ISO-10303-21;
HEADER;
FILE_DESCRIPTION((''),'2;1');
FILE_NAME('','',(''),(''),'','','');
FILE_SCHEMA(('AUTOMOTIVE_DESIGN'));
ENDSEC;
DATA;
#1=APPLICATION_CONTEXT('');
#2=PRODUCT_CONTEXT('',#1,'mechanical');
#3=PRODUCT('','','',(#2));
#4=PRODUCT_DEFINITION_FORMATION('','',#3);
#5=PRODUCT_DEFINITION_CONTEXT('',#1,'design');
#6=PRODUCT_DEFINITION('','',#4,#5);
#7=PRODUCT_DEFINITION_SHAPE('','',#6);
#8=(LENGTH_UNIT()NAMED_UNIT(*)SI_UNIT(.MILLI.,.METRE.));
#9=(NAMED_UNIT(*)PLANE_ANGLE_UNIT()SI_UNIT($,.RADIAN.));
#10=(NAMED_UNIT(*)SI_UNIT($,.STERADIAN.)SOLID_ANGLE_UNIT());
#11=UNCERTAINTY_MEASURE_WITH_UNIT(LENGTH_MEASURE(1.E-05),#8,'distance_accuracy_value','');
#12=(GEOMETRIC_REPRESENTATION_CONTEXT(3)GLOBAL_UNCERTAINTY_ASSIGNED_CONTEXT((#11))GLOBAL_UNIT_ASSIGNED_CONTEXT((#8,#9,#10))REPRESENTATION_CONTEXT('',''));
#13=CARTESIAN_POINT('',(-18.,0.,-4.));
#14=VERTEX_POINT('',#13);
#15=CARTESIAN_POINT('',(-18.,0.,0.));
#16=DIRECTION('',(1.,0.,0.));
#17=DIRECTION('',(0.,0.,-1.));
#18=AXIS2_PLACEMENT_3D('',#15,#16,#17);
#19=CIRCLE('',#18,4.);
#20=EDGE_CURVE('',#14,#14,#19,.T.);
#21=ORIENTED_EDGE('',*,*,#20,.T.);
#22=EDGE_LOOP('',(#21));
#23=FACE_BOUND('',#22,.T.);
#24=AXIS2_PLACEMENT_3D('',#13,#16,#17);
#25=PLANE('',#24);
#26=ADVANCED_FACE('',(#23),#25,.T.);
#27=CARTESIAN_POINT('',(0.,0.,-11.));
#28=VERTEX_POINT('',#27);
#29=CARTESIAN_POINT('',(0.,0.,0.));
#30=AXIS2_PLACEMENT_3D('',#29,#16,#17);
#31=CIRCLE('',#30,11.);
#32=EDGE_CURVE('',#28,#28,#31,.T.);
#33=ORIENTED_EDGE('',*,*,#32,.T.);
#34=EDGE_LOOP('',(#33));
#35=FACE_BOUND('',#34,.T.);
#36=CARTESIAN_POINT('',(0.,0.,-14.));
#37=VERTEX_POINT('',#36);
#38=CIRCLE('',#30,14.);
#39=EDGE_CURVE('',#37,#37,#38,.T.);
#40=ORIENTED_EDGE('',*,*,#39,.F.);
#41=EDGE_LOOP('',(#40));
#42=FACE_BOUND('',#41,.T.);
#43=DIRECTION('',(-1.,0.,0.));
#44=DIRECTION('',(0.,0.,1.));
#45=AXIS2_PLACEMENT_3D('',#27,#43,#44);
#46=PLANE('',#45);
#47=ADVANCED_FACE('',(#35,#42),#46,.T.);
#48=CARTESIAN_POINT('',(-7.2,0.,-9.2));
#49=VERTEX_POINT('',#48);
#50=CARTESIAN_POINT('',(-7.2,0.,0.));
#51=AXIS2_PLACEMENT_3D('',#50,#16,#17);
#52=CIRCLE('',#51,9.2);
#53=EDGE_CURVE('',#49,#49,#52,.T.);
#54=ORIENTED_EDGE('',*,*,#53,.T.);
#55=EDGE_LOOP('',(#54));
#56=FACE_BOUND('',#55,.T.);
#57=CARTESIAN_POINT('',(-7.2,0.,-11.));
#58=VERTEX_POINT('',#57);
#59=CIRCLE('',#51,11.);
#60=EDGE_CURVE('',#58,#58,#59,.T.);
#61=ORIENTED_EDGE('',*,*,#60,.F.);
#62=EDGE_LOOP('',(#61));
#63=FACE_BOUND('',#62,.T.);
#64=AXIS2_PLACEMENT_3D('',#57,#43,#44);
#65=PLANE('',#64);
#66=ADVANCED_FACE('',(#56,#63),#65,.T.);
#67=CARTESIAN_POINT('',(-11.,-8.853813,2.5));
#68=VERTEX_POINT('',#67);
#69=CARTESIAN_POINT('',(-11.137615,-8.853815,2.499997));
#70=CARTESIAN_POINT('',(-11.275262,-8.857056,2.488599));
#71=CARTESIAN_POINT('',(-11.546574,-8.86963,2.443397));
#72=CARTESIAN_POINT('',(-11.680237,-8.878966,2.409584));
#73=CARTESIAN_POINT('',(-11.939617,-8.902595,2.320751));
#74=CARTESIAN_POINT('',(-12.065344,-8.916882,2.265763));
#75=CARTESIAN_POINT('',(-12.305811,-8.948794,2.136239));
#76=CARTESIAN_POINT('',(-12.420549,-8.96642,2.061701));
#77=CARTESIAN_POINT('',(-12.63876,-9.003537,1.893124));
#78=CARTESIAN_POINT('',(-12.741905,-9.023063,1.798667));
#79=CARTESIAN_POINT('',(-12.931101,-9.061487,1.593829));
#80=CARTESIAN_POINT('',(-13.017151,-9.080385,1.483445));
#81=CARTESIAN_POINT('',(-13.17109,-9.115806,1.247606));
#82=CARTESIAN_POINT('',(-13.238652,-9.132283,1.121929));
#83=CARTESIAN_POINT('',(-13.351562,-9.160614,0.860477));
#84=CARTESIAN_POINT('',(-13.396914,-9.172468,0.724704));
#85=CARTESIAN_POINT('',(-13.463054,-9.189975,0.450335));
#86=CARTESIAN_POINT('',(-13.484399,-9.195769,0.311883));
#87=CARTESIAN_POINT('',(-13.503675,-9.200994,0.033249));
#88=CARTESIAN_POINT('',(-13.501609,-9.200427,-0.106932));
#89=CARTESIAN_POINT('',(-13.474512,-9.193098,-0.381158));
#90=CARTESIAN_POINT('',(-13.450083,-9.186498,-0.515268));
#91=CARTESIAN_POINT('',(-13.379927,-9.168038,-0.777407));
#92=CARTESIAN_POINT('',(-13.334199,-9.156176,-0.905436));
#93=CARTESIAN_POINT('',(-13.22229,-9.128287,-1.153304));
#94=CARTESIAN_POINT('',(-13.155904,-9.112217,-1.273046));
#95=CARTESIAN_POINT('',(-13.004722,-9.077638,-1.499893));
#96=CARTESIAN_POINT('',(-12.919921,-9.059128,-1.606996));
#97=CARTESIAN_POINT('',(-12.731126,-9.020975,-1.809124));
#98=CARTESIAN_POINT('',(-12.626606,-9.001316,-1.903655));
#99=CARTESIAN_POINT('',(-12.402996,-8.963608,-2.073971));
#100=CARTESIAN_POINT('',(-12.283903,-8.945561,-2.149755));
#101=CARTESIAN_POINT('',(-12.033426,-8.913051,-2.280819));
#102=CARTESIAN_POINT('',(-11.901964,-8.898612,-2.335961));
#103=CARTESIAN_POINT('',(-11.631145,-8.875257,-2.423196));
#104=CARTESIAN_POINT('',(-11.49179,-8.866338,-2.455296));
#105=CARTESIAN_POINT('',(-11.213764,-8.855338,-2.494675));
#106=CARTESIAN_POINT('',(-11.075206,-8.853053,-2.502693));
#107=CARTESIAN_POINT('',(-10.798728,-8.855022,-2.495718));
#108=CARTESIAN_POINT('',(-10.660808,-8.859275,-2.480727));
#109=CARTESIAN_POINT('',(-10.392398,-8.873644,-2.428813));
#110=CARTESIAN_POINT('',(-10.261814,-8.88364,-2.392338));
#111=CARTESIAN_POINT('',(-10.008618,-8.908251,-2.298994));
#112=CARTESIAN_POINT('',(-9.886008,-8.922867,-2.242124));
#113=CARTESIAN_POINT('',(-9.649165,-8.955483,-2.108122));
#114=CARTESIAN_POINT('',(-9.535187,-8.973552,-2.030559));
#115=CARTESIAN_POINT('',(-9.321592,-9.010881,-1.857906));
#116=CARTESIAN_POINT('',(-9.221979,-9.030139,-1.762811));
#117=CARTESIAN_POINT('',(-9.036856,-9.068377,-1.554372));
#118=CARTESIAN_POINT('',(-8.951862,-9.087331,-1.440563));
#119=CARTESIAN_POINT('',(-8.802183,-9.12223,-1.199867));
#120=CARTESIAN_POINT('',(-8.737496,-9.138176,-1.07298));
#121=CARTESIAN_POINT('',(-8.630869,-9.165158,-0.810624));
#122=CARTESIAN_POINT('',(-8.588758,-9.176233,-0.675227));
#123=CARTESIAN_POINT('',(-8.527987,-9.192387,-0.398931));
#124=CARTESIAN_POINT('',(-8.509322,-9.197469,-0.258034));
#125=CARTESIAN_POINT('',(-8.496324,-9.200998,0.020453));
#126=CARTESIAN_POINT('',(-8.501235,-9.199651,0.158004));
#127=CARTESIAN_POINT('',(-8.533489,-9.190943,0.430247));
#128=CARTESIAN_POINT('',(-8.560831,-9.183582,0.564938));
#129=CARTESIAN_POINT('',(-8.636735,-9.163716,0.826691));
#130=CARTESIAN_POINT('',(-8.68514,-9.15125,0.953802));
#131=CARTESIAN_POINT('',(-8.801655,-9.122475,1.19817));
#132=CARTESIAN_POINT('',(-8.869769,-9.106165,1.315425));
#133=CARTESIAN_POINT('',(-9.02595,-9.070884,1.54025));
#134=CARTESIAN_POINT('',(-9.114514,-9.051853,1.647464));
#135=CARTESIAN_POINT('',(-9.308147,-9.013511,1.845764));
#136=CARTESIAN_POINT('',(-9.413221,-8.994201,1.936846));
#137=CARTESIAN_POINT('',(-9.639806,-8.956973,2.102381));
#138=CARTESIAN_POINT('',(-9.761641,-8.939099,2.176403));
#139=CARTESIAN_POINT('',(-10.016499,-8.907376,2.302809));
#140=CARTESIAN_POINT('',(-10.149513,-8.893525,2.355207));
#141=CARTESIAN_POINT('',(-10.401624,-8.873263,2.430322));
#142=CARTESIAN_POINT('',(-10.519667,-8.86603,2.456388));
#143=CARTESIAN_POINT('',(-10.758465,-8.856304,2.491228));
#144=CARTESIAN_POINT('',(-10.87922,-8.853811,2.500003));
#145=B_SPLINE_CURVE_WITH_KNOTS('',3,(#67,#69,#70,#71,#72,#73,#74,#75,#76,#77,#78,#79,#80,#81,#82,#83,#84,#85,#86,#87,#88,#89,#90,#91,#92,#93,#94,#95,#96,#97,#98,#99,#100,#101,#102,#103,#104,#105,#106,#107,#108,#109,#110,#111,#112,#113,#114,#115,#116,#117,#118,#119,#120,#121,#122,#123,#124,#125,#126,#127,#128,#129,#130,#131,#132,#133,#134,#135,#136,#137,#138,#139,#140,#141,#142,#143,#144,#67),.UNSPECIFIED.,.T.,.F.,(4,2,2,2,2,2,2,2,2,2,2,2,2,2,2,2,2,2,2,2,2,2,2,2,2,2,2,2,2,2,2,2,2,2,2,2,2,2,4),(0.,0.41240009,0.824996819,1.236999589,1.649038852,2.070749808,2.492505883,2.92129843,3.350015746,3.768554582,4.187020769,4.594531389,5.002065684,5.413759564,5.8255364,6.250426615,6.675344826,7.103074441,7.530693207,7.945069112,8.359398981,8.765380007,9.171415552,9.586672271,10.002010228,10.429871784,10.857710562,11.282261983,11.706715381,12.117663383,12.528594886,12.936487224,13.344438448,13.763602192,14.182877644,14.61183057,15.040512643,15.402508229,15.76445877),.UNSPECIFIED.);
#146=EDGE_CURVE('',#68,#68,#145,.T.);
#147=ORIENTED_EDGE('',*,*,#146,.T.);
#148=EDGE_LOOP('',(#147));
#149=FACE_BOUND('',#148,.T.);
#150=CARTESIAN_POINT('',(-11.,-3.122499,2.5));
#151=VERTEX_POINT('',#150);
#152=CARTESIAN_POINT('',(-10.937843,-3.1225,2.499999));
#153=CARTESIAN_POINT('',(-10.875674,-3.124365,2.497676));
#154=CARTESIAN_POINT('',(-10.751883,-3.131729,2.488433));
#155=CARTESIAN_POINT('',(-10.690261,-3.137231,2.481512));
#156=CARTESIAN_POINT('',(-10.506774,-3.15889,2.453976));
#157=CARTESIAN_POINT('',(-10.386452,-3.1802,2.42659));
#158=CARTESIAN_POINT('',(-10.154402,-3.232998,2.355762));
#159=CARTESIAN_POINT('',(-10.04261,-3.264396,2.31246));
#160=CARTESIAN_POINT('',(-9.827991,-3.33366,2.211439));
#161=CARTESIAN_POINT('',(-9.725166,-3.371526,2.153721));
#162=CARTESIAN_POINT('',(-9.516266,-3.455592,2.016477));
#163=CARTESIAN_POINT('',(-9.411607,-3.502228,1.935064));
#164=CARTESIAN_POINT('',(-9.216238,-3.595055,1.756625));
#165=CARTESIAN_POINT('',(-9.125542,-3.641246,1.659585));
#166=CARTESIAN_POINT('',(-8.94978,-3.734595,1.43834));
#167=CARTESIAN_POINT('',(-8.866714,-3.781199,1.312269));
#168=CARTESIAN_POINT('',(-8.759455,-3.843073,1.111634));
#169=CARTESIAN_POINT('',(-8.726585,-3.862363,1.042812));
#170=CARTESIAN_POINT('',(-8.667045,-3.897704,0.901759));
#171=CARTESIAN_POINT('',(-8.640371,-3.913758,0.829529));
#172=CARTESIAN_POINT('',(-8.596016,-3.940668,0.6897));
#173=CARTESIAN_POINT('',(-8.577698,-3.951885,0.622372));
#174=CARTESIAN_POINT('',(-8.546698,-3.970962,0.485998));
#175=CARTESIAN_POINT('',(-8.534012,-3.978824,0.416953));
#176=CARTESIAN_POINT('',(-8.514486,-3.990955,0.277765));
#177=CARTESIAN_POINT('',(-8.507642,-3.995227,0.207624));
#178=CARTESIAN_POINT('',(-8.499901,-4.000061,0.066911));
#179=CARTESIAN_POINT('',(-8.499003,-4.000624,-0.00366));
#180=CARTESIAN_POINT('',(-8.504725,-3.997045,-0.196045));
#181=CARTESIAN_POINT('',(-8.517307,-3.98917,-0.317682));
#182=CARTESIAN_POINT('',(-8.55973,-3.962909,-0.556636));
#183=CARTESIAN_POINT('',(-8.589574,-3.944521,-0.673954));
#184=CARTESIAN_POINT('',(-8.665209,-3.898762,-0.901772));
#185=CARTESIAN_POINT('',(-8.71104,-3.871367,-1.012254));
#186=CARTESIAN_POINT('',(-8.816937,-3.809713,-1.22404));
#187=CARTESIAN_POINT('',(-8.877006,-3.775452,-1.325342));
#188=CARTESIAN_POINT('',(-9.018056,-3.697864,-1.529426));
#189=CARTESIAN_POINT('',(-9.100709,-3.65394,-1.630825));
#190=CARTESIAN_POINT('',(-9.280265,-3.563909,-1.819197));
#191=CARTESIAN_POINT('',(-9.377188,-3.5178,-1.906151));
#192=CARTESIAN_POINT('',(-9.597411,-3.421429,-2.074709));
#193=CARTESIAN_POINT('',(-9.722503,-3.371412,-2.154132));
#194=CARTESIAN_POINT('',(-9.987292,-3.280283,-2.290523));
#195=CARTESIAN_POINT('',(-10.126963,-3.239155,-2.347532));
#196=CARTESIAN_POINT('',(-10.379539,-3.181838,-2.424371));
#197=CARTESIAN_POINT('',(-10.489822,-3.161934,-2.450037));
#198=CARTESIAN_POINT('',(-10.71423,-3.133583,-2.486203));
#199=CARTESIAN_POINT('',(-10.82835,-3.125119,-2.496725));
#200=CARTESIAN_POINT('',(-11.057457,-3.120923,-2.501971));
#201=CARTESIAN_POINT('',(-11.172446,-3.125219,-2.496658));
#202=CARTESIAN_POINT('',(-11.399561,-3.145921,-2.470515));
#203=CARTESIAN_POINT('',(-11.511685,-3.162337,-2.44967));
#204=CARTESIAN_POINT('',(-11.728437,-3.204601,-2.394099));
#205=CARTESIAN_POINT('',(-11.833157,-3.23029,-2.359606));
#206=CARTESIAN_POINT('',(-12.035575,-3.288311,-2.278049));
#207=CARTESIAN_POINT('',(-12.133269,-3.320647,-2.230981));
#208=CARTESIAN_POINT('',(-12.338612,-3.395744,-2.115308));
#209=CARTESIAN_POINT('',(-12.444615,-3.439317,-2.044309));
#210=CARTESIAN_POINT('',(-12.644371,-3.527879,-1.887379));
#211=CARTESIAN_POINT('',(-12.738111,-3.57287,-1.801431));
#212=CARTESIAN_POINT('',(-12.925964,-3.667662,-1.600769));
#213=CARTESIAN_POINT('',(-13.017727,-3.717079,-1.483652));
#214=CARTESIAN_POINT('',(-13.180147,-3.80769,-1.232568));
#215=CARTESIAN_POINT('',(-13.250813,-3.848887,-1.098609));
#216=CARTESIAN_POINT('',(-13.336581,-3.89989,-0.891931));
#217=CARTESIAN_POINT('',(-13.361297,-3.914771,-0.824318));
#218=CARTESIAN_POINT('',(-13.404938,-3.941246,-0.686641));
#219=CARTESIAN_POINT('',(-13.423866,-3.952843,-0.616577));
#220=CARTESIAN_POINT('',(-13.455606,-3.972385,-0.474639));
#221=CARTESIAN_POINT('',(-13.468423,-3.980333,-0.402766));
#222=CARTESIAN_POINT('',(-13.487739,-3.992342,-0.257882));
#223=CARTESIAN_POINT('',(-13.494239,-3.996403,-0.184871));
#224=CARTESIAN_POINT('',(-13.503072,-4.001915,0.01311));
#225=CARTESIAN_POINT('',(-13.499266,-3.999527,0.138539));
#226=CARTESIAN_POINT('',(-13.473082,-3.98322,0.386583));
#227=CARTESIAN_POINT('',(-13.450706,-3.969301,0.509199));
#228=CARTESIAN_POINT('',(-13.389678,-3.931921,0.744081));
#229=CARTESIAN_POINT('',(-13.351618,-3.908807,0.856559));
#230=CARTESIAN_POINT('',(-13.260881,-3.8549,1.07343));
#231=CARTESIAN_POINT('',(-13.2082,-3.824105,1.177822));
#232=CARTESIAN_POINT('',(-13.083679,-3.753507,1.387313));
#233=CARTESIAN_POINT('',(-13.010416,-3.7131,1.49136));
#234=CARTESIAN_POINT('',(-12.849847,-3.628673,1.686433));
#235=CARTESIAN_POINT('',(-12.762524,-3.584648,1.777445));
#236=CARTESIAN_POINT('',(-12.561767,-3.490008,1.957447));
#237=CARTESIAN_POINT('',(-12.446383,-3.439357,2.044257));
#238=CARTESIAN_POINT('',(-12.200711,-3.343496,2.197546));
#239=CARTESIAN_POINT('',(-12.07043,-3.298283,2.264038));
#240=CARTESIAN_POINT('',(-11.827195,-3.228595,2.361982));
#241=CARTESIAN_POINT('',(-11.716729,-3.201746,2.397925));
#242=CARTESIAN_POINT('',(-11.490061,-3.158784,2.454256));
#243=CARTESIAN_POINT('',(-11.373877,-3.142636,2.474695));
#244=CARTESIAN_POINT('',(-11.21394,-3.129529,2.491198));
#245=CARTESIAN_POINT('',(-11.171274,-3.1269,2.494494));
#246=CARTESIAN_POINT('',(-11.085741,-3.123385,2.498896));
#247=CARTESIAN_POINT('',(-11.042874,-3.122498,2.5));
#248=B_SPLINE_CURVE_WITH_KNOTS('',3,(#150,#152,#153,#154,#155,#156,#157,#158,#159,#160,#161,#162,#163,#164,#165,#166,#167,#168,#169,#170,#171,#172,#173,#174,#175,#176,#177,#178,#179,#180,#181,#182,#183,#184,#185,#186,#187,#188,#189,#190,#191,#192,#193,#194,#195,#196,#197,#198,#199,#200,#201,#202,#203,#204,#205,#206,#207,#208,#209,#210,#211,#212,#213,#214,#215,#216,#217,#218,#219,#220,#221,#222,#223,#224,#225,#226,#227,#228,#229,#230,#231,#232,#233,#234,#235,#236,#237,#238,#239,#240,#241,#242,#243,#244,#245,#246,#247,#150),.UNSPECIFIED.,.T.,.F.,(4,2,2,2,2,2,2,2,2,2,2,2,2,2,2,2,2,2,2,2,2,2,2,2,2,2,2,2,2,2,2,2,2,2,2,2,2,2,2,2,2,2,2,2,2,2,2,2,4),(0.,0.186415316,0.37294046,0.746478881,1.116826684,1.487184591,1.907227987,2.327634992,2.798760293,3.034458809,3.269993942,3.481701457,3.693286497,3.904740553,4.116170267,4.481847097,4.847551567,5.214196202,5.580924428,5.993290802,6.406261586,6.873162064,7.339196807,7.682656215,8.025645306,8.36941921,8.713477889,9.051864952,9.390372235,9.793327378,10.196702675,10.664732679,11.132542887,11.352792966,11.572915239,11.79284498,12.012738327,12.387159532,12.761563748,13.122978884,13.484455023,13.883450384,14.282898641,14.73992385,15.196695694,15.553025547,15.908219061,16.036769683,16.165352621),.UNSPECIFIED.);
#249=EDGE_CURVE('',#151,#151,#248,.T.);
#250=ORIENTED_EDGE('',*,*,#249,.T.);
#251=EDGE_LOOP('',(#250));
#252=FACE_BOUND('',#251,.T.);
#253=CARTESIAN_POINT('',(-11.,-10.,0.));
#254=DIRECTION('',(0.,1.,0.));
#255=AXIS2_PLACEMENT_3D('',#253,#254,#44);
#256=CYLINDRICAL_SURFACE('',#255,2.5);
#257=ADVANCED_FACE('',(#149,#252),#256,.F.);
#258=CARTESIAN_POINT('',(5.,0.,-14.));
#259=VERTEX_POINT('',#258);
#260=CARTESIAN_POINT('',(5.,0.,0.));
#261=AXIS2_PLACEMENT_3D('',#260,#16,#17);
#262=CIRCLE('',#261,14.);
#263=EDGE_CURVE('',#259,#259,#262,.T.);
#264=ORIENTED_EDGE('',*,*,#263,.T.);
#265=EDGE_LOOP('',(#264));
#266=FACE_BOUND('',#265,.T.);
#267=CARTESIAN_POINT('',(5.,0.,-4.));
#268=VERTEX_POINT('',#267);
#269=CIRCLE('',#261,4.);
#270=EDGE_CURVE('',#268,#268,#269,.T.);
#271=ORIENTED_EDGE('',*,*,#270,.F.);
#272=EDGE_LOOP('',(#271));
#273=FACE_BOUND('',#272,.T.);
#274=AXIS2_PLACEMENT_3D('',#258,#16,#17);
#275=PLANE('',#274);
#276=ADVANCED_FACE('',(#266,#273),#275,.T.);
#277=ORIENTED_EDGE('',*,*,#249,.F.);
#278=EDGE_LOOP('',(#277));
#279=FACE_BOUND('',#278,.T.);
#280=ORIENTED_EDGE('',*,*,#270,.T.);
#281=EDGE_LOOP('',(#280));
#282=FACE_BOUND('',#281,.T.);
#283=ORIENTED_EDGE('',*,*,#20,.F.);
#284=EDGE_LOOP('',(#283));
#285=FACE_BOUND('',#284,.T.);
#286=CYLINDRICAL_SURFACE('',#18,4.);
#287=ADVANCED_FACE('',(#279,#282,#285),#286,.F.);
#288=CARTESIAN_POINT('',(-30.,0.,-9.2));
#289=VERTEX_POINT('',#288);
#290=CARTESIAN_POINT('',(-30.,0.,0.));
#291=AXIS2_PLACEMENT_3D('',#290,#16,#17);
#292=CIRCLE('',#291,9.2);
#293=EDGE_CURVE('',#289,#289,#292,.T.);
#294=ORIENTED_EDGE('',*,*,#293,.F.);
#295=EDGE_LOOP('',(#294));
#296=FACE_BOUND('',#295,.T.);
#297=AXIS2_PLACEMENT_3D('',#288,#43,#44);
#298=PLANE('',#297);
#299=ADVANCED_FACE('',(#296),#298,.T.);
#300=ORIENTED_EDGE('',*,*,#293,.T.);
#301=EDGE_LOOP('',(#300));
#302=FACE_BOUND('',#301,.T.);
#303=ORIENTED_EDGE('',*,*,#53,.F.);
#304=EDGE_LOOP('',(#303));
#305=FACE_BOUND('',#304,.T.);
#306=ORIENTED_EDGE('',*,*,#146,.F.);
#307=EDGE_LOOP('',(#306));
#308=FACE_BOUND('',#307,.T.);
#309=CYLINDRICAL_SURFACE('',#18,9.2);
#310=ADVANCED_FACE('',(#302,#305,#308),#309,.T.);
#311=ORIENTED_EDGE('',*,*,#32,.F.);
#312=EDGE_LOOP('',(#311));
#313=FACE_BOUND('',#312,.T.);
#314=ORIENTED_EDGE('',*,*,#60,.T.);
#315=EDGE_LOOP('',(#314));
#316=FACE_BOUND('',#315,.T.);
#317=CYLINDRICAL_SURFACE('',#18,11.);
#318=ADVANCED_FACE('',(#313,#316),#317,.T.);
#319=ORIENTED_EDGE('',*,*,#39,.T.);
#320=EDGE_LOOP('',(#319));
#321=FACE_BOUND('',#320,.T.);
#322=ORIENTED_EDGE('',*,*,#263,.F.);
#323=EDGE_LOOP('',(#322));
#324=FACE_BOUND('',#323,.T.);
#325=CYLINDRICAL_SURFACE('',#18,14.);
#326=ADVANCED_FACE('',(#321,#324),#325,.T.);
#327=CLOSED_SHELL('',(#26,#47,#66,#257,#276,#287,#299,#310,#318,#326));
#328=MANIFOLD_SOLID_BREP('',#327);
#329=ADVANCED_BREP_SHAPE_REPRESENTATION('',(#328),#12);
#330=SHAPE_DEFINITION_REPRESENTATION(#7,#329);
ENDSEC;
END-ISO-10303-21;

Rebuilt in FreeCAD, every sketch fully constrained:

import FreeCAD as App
import Part
import Sketcher

V = App.Vector
Q = App.Units.Quantity


def add_polygon(sketch, points):
    """Adds a closed chain of lines whose ends are joined by coincident constraints."""
    first, n = sketch.GeometryCount, len(points)
    for a, b in zip(points, points[1:] + points[:1]):
        sketch.addGeometry(Part.LineSegment(App.Vector(*a, 0), App.Vector(*b, 0)), False)
    for i in range(n):
        sketch.addConstraint(Sketcher.Constraint("Coincident", first + i, 2, first + (i + 1) % n, 1))

doc = App.newDocument("Part")
body = doc.addObject("PartDesign::Body", "Body")

sketch1 = doc.addObject("Sketcher::SketchObject", "Sketch")
body.addObject(sketch1)
sketch1.AttachmentSupport = (doc.XZ_Plane, [""])
sketch1.MapMode = "FlatFace"
add_polygon(sketch1, [(0, -11), (-7.2, -11), (-7.2, -9.2), (-30, -9.2), (-30, 0), (-18, 0), (-18, -4), (5, -4), (5, -14), (0, -14)])
sketch1.addConstraint([
    Sketcher.Constraint("Horizontal", 0),
    Sketcher.Constraint("Vertical", 1),
    Sketcher.Constraint("Horizontal", 2),
    Sketcher.Constraint("Vertical", 3),
    Sketcher.Constraint("Horizontal", 4),
    Sketcher.Constraint("Vertical", 5),
    Sketcher.Constraint("Horizontal", 6),
    Sketcher.Constraint("Vertical", 7),
    Sketcher.Constraint("Horizontal", 8),
    Sketcher.Constraint("Vertical", 9),
    Sketcher.Constraint("PointOnObject", 3, 2, -1),
    Sketcher.Constraint("PointOnObject", 8, 2, -2),
    Sketcher.Constraint("DistanceX", 4, 1, 4, 2, Q("12 mm")),
    Sketcher.Constraint("DistanceX", 6, 1, 6, 2, Q("23 mm")),
    Sketcher.Constraint("DistanceX", 8, 2, 8, 1, Q("5 mm")),
    Sketcher.Constraint("DistanceY", 5, 2, 5, 1, Q("4 mm")),
    Sketcher.Constraint("DistanceY", 7, 2, 7, 1, Q("10 mm")),
    Sketcher.Constraint("DistanceY", 9, 1, 9, 2, Q("3 mm")),
    Sketcher.Constraint("DistanceX", 0, 2, 0, 1, Q("7.2 mm")),
    Sketcher.Constraint("DistanceY", 1, 1, 1, 2, Q("1.8 mm")),
])
revolution = doc.addObject("PartDesign::Revolution", "Revolution")
body.addObject(revolution)
revolution.Profile = sketch1
revolution.ReferenceAxis = (sketch1, ["H_Axis"])
revolution.Angle = 360

sketch2 = doc.addObject("Sketcher::SketchObject", "Sketch001")
body.addObject(sketch2)
sketch2.AttachmentSupport = (doc.XZ_Plane, [""])
sketch2.MapMode = "FlatFace"
sketch2.addGeometry(Part.Circle(V(-11, 0, 0), V(0, 0, 1), 2.5), False)
sketch2.addConstraint([
    Sketcher.Constraint("PointOnObject", 0, 3, -1),
    Sketcher.Constraint("Diameter", 0, Q("5 mm")),
    Sketcher.Constraint("DistanceX", 0, 3, -1, 1, Q("11 mm")),
])
pocket1 = doc.addObject("PartDesign::Pocket", "Pocket")
body.addObject(pocket1)
pocket1.Profile = sketch2
pocket1.Length = 10
pocket1.Reversed = True

doc.recompute()
